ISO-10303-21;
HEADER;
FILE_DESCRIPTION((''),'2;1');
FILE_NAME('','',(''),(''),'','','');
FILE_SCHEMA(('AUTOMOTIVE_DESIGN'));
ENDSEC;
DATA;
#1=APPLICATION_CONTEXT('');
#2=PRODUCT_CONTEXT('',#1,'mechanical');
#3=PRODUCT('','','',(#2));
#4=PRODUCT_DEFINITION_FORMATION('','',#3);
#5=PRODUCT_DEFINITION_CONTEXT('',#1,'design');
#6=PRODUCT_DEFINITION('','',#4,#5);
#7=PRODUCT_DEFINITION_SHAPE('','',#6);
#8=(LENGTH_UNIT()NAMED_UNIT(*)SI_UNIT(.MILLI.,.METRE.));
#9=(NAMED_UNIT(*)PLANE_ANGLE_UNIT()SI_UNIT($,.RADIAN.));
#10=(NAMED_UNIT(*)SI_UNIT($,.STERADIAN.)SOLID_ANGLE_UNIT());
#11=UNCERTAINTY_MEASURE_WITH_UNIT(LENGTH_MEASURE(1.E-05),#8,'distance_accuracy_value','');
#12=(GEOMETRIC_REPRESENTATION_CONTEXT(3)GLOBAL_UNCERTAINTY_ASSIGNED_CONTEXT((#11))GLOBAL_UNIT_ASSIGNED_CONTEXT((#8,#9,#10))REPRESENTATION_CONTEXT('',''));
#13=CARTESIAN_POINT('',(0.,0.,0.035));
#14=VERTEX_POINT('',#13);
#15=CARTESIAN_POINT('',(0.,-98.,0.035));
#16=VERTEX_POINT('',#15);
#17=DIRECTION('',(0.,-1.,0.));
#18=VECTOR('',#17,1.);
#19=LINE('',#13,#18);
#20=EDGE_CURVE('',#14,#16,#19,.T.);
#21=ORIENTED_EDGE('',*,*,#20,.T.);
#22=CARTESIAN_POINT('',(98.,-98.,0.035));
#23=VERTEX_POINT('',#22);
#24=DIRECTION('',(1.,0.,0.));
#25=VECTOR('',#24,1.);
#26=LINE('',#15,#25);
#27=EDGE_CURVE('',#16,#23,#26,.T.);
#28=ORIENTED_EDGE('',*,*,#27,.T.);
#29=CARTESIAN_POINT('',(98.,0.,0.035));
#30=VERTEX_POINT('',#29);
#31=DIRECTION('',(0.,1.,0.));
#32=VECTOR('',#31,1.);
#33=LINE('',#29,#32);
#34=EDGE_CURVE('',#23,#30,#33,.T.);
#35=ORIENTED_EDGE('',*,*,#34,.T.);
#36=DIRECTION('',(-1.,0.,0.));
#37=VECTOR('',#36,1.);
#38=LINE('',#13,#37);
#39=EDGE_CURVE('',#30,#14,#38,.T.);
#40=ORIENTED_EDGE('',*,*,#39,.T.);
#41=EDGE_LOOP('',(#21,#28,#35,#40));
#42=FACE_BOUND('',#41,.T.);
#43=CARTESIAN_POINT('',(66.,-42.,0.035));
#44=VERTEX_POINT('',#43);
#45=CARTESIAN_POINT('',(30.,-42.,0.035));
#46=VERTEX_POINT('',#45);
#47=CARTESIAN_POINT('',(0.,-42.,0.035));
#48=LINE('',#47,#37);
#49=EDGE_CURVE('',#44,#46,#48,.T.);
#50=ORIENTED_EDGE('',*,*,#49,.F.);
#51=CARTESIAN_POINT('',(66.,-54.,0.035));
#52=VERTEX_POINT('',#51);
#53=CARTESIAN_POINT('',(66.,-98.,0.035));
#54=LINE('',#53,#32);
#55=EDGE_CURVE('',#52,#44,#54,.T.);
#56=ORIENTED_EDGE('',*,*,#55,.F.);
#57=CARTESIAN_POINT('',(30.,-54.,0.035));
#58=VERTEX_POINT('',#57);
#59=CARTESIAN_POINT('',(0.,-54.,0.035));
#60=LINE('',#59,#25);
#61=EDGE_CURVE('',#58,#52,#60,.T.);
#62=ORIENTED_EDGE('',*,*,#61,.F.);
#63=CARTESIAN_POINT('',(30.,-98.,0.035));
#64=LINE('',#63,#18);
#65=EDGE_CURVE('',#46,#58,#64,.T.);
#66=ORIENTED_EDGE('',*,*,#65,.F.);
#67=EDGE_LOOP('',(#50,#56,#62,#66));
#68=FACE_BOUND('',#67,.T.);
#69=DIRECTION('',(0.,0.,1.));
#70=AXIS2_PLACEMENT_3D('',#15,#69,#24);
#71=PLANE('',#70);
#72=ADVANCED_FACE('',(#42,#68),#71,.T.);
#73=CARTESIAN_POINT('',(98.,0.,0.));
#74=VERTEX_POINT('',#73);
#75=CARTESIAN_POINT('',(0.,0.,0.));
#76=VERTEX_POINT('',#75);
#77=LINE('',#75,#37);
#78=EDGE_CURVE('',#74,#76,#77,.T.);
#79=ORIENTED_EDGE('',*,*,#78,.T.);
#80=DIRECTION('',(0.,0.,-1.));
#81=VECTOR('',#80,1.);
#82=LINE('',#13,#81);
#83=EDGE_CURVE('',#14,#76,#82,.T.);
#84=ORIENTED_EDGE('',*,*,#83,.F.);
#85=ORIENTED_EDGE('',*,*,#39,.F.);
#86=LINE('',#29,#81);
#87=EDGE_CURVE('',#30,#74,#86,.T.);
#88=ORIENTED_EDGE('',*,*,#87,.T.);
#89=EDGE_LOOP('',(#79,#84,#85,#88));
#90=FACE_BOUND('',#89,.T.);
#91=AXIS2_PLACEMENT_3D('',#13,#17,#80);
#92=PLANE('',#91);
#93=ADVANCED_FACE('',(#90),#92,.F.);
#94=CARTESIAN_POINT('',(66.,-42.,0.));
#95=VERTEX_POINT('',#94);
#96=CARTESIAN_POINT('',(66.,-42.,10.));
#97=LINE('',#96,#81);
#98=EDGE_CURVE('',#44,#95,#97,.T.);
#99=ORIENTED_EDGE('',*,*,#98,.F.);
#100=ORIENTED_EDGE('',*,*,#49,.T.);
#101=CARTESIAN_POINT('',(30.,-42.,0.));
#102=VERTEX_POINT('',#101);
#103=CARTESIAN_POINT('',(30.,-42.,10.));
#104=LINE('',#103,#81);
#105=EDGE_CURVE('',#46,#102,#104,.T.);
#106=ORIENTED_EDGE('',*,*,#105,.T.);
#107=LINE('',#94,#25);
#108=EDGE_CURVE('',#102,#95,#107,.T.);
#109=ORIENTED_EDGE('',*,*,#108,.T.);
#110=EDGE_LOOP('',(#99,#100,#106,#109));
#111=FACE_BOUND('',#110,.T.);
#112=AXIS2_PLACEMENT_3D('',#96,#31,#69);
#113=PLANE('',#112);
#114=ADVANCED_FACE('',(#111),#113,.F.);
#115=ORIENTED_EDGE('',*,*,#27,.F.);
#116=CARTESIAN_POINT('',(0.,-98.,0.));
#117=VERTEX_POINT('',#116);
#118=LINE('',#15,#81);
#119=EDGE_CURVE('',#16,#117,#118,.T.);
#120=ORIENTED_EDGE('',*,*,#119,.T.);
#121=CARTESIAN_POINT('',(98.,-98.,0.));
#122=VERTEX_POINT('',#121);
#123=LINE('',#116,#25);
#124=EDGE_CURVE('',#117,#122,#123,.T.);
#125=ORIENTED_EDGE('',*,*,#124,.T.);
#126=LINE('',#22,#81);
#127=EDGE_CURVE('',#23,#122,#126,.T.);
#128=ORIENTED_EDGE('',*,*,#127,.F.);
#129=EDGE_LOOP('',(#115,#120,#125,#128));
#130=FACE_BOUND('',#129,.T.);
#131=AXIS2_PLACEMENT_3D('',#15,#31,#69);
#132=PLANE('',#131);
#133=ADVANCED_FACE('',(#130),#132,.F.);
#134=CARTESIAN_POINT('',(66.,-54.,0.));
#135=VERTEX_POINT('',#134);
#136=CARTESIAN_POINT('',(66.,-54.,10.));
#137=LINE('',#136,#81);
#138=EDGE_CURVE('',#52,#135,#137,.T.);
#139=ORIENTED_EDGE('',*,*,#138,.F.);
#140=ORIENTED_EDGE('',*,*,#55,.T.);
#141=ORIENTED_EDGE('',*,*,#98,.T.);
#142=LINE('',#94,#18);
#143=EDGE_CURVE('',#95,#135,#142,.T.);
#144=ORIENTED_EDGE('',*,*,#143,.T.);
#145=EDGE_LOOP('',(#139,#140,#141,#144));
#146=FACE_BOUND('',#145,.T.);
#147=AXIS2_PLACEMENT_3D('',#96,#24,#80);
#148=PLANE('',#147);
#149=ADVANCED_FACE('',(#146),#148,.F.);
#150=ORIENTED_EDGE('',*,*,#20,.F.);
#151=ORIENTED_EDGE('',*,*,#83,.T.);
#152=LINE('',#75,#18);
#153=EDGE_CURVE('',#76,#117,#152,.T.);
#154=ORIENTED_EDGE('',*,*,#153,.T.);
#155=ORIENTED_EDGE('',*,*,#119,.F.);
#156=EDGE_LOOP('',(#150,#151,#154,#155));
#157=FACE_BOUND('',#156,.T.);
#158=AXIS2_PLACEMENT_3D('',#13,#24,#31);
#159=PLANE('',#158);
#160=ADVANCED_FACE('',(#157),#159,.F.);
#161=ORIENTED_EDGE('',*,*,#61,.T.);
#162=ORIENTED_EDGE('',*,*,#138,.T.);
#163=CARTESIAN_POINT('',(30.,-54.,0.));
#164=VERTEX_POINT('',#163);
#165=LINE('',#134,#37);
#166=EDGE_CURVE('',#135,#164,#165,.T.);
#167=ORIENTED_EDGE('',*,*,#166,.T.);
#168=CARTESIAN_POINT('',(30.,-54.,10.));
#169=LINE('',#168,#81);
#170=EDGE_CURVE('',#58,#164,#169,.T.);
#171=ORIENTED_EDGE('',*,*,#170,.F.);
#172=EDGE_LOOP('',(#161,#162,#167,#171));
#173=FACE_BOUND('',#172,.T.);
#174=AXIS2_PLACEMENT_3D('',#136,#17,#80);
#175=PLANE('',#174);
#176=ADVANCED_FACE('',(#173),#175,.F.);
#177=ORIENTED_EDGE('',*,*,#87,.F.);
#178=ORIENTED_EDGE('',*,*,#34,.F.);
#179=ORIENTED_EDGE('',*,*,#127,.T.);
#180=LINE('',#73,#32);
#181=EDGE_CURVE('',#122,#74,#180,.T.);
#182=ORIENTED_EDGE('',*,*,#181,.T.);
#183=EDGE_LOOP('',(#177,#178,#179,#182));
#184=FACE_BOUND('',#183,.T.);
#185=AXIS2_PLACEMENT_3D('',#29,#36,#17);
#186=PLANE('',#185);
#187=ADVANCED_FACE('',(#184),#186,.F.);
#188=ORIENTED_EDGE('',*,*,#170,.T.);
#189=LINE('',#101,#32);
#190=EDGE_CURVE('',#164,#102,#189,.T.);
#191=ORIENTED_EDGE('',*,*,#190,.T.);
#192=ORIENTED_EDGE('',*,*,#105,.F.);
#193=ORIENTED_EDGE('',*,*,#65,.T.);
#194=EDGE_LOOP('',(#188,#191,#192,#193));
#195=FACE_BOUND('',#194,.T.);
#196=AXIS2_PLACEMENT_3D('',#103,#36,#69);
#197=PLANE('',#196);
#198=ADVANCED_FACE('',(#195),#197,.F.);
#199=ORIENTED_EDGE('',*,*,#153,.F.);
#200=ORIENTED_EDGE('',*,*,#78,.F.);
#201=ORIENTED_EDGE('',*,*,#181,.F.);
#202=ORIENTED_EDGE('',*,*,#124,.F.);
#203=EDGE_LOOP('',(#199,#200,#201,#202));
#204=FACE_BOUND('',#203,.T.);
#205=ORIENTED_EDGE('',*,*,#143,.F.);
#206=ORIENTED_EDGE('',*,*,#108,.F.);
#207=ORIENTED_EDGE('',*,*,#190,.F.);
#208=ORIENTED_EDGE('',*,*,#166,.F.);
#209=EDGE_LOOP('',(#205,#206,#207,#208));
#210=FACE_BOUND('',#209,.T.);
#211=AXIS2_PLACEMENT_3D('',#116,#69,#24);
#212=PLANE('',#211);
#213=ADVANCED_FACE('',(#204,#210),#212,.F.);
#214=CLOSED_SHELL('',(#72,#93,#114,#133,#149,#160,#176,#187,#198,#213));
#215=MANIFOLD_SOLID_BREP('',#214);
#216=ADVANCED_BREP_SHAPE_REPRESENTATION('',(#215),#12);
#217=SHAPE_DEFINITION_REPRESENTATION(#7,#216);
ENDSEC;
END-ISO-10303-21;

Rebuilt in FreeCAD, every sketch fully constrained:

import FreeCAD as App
import Part
import Sketcher

V = App.Vector
Q = App.Units.Quantity


def add_polygon(sketch, points):
    """Adds a closed chain of lines whose ends are joined by coincident constraints."""
    first, n = sketch.GeometryCount, len(points)
    for a, b in zip(points, points[1:] + points[:1]):
        sketch.addGeometry(Part.LineSegment(App.Vector(*a, 0), App.Vector(*b, 0)), False)
    for i in range(n):
        sketch.addConstraint(Sketcher.Constraint("Coincident", first + i, 2, first + (i + 1) % n, 1))

doc = App.newDocument("Part")
body = doc.addObject("PartDesign::Body", "Body")

# Sketch on XY plane
sketch1 = body.newObject("Sketcher::SketchObject", "Sketch")
sketch1.AttachmentSupport = (doc.getObject("XY_Plane"), [""])
sketch1.MapMode = "FlatFace"
add_polygon(sketch1, [(0, 0), (0, -98), (98, -98), (98, 0)])  # lines 0-3
sketch1.addConstraint(Sketcher.Constraint("Vertical", 0))
sketch1.addConstraint(Sketcher.Constraint("Horizontal", 1))
sketch1.addConstraint(Sketcher.Constraint("Vertical", 2))
sketch1.addConstraint(Sketcher.Constraint("Horizontal", 3))
sketch1.addConstraint(Sketcher.Constraint("Coincident", 3, 2, -1, 1))
sketch1.addConstraint(Sketcher.Constraint("Equal", 3, 0))
sketch1.addConstraint(Sketcher.Constraint("DistanceX", 1, 1, 1, 2, Q("98 mm")))
pad1 = body.newObject("PartDesign::Pad", "Pad")
pad1.Profile = sketch1
pad1.Length = 0.035

# Sketch on XY plane
sketch2 = body.newObject("Sketcher::SketchObject", "Sketch001")
sketch2.AttachmentSupport = (doc.getObject("XY_Plane"), [""])
sketch2.MapMode = "FlatFace"
add_polygon(sketch2, [(66, -42), (66, -54), (30, -54), (30, -42)])  # lines 0-3
sketch2.addConstraint(Sketcher.Constraint("Vertical", 0))
sketch2.addConstraint(Sketcher.Constraint("Horizontal", 1))
sketch2.addConstraint(Sketcher.Constraint("Vertical", 2))
sketch2.addConstraint(Sketcher.Constraint("Horizontal", 3))
sketch2.addConstraint(Sketcher.Constraint("DistanceX", 1, 2, 1, 1, Q("36 mm")))
sketch2.addConstraint(Sketcher.Constraint("DistanceY", 0, 2, 0, 1, Q("12 mm")))
sketch2.addConstraint(Sketcher.Constraint("DistanceX", -1, 1, 0, 2, Q("66 mm")))
sketch2.addConstraint(Sketcher.Constraint("DistanceY", 0, 2, -1, 1, Q("54 mm")))
pocket1 = body.newObject("PartDesign::Pocket", "Pocket")
pocket1.Profile = sketch2
pocket1.Length = 10
pocket1.Reversed = True

doc.recompute()
